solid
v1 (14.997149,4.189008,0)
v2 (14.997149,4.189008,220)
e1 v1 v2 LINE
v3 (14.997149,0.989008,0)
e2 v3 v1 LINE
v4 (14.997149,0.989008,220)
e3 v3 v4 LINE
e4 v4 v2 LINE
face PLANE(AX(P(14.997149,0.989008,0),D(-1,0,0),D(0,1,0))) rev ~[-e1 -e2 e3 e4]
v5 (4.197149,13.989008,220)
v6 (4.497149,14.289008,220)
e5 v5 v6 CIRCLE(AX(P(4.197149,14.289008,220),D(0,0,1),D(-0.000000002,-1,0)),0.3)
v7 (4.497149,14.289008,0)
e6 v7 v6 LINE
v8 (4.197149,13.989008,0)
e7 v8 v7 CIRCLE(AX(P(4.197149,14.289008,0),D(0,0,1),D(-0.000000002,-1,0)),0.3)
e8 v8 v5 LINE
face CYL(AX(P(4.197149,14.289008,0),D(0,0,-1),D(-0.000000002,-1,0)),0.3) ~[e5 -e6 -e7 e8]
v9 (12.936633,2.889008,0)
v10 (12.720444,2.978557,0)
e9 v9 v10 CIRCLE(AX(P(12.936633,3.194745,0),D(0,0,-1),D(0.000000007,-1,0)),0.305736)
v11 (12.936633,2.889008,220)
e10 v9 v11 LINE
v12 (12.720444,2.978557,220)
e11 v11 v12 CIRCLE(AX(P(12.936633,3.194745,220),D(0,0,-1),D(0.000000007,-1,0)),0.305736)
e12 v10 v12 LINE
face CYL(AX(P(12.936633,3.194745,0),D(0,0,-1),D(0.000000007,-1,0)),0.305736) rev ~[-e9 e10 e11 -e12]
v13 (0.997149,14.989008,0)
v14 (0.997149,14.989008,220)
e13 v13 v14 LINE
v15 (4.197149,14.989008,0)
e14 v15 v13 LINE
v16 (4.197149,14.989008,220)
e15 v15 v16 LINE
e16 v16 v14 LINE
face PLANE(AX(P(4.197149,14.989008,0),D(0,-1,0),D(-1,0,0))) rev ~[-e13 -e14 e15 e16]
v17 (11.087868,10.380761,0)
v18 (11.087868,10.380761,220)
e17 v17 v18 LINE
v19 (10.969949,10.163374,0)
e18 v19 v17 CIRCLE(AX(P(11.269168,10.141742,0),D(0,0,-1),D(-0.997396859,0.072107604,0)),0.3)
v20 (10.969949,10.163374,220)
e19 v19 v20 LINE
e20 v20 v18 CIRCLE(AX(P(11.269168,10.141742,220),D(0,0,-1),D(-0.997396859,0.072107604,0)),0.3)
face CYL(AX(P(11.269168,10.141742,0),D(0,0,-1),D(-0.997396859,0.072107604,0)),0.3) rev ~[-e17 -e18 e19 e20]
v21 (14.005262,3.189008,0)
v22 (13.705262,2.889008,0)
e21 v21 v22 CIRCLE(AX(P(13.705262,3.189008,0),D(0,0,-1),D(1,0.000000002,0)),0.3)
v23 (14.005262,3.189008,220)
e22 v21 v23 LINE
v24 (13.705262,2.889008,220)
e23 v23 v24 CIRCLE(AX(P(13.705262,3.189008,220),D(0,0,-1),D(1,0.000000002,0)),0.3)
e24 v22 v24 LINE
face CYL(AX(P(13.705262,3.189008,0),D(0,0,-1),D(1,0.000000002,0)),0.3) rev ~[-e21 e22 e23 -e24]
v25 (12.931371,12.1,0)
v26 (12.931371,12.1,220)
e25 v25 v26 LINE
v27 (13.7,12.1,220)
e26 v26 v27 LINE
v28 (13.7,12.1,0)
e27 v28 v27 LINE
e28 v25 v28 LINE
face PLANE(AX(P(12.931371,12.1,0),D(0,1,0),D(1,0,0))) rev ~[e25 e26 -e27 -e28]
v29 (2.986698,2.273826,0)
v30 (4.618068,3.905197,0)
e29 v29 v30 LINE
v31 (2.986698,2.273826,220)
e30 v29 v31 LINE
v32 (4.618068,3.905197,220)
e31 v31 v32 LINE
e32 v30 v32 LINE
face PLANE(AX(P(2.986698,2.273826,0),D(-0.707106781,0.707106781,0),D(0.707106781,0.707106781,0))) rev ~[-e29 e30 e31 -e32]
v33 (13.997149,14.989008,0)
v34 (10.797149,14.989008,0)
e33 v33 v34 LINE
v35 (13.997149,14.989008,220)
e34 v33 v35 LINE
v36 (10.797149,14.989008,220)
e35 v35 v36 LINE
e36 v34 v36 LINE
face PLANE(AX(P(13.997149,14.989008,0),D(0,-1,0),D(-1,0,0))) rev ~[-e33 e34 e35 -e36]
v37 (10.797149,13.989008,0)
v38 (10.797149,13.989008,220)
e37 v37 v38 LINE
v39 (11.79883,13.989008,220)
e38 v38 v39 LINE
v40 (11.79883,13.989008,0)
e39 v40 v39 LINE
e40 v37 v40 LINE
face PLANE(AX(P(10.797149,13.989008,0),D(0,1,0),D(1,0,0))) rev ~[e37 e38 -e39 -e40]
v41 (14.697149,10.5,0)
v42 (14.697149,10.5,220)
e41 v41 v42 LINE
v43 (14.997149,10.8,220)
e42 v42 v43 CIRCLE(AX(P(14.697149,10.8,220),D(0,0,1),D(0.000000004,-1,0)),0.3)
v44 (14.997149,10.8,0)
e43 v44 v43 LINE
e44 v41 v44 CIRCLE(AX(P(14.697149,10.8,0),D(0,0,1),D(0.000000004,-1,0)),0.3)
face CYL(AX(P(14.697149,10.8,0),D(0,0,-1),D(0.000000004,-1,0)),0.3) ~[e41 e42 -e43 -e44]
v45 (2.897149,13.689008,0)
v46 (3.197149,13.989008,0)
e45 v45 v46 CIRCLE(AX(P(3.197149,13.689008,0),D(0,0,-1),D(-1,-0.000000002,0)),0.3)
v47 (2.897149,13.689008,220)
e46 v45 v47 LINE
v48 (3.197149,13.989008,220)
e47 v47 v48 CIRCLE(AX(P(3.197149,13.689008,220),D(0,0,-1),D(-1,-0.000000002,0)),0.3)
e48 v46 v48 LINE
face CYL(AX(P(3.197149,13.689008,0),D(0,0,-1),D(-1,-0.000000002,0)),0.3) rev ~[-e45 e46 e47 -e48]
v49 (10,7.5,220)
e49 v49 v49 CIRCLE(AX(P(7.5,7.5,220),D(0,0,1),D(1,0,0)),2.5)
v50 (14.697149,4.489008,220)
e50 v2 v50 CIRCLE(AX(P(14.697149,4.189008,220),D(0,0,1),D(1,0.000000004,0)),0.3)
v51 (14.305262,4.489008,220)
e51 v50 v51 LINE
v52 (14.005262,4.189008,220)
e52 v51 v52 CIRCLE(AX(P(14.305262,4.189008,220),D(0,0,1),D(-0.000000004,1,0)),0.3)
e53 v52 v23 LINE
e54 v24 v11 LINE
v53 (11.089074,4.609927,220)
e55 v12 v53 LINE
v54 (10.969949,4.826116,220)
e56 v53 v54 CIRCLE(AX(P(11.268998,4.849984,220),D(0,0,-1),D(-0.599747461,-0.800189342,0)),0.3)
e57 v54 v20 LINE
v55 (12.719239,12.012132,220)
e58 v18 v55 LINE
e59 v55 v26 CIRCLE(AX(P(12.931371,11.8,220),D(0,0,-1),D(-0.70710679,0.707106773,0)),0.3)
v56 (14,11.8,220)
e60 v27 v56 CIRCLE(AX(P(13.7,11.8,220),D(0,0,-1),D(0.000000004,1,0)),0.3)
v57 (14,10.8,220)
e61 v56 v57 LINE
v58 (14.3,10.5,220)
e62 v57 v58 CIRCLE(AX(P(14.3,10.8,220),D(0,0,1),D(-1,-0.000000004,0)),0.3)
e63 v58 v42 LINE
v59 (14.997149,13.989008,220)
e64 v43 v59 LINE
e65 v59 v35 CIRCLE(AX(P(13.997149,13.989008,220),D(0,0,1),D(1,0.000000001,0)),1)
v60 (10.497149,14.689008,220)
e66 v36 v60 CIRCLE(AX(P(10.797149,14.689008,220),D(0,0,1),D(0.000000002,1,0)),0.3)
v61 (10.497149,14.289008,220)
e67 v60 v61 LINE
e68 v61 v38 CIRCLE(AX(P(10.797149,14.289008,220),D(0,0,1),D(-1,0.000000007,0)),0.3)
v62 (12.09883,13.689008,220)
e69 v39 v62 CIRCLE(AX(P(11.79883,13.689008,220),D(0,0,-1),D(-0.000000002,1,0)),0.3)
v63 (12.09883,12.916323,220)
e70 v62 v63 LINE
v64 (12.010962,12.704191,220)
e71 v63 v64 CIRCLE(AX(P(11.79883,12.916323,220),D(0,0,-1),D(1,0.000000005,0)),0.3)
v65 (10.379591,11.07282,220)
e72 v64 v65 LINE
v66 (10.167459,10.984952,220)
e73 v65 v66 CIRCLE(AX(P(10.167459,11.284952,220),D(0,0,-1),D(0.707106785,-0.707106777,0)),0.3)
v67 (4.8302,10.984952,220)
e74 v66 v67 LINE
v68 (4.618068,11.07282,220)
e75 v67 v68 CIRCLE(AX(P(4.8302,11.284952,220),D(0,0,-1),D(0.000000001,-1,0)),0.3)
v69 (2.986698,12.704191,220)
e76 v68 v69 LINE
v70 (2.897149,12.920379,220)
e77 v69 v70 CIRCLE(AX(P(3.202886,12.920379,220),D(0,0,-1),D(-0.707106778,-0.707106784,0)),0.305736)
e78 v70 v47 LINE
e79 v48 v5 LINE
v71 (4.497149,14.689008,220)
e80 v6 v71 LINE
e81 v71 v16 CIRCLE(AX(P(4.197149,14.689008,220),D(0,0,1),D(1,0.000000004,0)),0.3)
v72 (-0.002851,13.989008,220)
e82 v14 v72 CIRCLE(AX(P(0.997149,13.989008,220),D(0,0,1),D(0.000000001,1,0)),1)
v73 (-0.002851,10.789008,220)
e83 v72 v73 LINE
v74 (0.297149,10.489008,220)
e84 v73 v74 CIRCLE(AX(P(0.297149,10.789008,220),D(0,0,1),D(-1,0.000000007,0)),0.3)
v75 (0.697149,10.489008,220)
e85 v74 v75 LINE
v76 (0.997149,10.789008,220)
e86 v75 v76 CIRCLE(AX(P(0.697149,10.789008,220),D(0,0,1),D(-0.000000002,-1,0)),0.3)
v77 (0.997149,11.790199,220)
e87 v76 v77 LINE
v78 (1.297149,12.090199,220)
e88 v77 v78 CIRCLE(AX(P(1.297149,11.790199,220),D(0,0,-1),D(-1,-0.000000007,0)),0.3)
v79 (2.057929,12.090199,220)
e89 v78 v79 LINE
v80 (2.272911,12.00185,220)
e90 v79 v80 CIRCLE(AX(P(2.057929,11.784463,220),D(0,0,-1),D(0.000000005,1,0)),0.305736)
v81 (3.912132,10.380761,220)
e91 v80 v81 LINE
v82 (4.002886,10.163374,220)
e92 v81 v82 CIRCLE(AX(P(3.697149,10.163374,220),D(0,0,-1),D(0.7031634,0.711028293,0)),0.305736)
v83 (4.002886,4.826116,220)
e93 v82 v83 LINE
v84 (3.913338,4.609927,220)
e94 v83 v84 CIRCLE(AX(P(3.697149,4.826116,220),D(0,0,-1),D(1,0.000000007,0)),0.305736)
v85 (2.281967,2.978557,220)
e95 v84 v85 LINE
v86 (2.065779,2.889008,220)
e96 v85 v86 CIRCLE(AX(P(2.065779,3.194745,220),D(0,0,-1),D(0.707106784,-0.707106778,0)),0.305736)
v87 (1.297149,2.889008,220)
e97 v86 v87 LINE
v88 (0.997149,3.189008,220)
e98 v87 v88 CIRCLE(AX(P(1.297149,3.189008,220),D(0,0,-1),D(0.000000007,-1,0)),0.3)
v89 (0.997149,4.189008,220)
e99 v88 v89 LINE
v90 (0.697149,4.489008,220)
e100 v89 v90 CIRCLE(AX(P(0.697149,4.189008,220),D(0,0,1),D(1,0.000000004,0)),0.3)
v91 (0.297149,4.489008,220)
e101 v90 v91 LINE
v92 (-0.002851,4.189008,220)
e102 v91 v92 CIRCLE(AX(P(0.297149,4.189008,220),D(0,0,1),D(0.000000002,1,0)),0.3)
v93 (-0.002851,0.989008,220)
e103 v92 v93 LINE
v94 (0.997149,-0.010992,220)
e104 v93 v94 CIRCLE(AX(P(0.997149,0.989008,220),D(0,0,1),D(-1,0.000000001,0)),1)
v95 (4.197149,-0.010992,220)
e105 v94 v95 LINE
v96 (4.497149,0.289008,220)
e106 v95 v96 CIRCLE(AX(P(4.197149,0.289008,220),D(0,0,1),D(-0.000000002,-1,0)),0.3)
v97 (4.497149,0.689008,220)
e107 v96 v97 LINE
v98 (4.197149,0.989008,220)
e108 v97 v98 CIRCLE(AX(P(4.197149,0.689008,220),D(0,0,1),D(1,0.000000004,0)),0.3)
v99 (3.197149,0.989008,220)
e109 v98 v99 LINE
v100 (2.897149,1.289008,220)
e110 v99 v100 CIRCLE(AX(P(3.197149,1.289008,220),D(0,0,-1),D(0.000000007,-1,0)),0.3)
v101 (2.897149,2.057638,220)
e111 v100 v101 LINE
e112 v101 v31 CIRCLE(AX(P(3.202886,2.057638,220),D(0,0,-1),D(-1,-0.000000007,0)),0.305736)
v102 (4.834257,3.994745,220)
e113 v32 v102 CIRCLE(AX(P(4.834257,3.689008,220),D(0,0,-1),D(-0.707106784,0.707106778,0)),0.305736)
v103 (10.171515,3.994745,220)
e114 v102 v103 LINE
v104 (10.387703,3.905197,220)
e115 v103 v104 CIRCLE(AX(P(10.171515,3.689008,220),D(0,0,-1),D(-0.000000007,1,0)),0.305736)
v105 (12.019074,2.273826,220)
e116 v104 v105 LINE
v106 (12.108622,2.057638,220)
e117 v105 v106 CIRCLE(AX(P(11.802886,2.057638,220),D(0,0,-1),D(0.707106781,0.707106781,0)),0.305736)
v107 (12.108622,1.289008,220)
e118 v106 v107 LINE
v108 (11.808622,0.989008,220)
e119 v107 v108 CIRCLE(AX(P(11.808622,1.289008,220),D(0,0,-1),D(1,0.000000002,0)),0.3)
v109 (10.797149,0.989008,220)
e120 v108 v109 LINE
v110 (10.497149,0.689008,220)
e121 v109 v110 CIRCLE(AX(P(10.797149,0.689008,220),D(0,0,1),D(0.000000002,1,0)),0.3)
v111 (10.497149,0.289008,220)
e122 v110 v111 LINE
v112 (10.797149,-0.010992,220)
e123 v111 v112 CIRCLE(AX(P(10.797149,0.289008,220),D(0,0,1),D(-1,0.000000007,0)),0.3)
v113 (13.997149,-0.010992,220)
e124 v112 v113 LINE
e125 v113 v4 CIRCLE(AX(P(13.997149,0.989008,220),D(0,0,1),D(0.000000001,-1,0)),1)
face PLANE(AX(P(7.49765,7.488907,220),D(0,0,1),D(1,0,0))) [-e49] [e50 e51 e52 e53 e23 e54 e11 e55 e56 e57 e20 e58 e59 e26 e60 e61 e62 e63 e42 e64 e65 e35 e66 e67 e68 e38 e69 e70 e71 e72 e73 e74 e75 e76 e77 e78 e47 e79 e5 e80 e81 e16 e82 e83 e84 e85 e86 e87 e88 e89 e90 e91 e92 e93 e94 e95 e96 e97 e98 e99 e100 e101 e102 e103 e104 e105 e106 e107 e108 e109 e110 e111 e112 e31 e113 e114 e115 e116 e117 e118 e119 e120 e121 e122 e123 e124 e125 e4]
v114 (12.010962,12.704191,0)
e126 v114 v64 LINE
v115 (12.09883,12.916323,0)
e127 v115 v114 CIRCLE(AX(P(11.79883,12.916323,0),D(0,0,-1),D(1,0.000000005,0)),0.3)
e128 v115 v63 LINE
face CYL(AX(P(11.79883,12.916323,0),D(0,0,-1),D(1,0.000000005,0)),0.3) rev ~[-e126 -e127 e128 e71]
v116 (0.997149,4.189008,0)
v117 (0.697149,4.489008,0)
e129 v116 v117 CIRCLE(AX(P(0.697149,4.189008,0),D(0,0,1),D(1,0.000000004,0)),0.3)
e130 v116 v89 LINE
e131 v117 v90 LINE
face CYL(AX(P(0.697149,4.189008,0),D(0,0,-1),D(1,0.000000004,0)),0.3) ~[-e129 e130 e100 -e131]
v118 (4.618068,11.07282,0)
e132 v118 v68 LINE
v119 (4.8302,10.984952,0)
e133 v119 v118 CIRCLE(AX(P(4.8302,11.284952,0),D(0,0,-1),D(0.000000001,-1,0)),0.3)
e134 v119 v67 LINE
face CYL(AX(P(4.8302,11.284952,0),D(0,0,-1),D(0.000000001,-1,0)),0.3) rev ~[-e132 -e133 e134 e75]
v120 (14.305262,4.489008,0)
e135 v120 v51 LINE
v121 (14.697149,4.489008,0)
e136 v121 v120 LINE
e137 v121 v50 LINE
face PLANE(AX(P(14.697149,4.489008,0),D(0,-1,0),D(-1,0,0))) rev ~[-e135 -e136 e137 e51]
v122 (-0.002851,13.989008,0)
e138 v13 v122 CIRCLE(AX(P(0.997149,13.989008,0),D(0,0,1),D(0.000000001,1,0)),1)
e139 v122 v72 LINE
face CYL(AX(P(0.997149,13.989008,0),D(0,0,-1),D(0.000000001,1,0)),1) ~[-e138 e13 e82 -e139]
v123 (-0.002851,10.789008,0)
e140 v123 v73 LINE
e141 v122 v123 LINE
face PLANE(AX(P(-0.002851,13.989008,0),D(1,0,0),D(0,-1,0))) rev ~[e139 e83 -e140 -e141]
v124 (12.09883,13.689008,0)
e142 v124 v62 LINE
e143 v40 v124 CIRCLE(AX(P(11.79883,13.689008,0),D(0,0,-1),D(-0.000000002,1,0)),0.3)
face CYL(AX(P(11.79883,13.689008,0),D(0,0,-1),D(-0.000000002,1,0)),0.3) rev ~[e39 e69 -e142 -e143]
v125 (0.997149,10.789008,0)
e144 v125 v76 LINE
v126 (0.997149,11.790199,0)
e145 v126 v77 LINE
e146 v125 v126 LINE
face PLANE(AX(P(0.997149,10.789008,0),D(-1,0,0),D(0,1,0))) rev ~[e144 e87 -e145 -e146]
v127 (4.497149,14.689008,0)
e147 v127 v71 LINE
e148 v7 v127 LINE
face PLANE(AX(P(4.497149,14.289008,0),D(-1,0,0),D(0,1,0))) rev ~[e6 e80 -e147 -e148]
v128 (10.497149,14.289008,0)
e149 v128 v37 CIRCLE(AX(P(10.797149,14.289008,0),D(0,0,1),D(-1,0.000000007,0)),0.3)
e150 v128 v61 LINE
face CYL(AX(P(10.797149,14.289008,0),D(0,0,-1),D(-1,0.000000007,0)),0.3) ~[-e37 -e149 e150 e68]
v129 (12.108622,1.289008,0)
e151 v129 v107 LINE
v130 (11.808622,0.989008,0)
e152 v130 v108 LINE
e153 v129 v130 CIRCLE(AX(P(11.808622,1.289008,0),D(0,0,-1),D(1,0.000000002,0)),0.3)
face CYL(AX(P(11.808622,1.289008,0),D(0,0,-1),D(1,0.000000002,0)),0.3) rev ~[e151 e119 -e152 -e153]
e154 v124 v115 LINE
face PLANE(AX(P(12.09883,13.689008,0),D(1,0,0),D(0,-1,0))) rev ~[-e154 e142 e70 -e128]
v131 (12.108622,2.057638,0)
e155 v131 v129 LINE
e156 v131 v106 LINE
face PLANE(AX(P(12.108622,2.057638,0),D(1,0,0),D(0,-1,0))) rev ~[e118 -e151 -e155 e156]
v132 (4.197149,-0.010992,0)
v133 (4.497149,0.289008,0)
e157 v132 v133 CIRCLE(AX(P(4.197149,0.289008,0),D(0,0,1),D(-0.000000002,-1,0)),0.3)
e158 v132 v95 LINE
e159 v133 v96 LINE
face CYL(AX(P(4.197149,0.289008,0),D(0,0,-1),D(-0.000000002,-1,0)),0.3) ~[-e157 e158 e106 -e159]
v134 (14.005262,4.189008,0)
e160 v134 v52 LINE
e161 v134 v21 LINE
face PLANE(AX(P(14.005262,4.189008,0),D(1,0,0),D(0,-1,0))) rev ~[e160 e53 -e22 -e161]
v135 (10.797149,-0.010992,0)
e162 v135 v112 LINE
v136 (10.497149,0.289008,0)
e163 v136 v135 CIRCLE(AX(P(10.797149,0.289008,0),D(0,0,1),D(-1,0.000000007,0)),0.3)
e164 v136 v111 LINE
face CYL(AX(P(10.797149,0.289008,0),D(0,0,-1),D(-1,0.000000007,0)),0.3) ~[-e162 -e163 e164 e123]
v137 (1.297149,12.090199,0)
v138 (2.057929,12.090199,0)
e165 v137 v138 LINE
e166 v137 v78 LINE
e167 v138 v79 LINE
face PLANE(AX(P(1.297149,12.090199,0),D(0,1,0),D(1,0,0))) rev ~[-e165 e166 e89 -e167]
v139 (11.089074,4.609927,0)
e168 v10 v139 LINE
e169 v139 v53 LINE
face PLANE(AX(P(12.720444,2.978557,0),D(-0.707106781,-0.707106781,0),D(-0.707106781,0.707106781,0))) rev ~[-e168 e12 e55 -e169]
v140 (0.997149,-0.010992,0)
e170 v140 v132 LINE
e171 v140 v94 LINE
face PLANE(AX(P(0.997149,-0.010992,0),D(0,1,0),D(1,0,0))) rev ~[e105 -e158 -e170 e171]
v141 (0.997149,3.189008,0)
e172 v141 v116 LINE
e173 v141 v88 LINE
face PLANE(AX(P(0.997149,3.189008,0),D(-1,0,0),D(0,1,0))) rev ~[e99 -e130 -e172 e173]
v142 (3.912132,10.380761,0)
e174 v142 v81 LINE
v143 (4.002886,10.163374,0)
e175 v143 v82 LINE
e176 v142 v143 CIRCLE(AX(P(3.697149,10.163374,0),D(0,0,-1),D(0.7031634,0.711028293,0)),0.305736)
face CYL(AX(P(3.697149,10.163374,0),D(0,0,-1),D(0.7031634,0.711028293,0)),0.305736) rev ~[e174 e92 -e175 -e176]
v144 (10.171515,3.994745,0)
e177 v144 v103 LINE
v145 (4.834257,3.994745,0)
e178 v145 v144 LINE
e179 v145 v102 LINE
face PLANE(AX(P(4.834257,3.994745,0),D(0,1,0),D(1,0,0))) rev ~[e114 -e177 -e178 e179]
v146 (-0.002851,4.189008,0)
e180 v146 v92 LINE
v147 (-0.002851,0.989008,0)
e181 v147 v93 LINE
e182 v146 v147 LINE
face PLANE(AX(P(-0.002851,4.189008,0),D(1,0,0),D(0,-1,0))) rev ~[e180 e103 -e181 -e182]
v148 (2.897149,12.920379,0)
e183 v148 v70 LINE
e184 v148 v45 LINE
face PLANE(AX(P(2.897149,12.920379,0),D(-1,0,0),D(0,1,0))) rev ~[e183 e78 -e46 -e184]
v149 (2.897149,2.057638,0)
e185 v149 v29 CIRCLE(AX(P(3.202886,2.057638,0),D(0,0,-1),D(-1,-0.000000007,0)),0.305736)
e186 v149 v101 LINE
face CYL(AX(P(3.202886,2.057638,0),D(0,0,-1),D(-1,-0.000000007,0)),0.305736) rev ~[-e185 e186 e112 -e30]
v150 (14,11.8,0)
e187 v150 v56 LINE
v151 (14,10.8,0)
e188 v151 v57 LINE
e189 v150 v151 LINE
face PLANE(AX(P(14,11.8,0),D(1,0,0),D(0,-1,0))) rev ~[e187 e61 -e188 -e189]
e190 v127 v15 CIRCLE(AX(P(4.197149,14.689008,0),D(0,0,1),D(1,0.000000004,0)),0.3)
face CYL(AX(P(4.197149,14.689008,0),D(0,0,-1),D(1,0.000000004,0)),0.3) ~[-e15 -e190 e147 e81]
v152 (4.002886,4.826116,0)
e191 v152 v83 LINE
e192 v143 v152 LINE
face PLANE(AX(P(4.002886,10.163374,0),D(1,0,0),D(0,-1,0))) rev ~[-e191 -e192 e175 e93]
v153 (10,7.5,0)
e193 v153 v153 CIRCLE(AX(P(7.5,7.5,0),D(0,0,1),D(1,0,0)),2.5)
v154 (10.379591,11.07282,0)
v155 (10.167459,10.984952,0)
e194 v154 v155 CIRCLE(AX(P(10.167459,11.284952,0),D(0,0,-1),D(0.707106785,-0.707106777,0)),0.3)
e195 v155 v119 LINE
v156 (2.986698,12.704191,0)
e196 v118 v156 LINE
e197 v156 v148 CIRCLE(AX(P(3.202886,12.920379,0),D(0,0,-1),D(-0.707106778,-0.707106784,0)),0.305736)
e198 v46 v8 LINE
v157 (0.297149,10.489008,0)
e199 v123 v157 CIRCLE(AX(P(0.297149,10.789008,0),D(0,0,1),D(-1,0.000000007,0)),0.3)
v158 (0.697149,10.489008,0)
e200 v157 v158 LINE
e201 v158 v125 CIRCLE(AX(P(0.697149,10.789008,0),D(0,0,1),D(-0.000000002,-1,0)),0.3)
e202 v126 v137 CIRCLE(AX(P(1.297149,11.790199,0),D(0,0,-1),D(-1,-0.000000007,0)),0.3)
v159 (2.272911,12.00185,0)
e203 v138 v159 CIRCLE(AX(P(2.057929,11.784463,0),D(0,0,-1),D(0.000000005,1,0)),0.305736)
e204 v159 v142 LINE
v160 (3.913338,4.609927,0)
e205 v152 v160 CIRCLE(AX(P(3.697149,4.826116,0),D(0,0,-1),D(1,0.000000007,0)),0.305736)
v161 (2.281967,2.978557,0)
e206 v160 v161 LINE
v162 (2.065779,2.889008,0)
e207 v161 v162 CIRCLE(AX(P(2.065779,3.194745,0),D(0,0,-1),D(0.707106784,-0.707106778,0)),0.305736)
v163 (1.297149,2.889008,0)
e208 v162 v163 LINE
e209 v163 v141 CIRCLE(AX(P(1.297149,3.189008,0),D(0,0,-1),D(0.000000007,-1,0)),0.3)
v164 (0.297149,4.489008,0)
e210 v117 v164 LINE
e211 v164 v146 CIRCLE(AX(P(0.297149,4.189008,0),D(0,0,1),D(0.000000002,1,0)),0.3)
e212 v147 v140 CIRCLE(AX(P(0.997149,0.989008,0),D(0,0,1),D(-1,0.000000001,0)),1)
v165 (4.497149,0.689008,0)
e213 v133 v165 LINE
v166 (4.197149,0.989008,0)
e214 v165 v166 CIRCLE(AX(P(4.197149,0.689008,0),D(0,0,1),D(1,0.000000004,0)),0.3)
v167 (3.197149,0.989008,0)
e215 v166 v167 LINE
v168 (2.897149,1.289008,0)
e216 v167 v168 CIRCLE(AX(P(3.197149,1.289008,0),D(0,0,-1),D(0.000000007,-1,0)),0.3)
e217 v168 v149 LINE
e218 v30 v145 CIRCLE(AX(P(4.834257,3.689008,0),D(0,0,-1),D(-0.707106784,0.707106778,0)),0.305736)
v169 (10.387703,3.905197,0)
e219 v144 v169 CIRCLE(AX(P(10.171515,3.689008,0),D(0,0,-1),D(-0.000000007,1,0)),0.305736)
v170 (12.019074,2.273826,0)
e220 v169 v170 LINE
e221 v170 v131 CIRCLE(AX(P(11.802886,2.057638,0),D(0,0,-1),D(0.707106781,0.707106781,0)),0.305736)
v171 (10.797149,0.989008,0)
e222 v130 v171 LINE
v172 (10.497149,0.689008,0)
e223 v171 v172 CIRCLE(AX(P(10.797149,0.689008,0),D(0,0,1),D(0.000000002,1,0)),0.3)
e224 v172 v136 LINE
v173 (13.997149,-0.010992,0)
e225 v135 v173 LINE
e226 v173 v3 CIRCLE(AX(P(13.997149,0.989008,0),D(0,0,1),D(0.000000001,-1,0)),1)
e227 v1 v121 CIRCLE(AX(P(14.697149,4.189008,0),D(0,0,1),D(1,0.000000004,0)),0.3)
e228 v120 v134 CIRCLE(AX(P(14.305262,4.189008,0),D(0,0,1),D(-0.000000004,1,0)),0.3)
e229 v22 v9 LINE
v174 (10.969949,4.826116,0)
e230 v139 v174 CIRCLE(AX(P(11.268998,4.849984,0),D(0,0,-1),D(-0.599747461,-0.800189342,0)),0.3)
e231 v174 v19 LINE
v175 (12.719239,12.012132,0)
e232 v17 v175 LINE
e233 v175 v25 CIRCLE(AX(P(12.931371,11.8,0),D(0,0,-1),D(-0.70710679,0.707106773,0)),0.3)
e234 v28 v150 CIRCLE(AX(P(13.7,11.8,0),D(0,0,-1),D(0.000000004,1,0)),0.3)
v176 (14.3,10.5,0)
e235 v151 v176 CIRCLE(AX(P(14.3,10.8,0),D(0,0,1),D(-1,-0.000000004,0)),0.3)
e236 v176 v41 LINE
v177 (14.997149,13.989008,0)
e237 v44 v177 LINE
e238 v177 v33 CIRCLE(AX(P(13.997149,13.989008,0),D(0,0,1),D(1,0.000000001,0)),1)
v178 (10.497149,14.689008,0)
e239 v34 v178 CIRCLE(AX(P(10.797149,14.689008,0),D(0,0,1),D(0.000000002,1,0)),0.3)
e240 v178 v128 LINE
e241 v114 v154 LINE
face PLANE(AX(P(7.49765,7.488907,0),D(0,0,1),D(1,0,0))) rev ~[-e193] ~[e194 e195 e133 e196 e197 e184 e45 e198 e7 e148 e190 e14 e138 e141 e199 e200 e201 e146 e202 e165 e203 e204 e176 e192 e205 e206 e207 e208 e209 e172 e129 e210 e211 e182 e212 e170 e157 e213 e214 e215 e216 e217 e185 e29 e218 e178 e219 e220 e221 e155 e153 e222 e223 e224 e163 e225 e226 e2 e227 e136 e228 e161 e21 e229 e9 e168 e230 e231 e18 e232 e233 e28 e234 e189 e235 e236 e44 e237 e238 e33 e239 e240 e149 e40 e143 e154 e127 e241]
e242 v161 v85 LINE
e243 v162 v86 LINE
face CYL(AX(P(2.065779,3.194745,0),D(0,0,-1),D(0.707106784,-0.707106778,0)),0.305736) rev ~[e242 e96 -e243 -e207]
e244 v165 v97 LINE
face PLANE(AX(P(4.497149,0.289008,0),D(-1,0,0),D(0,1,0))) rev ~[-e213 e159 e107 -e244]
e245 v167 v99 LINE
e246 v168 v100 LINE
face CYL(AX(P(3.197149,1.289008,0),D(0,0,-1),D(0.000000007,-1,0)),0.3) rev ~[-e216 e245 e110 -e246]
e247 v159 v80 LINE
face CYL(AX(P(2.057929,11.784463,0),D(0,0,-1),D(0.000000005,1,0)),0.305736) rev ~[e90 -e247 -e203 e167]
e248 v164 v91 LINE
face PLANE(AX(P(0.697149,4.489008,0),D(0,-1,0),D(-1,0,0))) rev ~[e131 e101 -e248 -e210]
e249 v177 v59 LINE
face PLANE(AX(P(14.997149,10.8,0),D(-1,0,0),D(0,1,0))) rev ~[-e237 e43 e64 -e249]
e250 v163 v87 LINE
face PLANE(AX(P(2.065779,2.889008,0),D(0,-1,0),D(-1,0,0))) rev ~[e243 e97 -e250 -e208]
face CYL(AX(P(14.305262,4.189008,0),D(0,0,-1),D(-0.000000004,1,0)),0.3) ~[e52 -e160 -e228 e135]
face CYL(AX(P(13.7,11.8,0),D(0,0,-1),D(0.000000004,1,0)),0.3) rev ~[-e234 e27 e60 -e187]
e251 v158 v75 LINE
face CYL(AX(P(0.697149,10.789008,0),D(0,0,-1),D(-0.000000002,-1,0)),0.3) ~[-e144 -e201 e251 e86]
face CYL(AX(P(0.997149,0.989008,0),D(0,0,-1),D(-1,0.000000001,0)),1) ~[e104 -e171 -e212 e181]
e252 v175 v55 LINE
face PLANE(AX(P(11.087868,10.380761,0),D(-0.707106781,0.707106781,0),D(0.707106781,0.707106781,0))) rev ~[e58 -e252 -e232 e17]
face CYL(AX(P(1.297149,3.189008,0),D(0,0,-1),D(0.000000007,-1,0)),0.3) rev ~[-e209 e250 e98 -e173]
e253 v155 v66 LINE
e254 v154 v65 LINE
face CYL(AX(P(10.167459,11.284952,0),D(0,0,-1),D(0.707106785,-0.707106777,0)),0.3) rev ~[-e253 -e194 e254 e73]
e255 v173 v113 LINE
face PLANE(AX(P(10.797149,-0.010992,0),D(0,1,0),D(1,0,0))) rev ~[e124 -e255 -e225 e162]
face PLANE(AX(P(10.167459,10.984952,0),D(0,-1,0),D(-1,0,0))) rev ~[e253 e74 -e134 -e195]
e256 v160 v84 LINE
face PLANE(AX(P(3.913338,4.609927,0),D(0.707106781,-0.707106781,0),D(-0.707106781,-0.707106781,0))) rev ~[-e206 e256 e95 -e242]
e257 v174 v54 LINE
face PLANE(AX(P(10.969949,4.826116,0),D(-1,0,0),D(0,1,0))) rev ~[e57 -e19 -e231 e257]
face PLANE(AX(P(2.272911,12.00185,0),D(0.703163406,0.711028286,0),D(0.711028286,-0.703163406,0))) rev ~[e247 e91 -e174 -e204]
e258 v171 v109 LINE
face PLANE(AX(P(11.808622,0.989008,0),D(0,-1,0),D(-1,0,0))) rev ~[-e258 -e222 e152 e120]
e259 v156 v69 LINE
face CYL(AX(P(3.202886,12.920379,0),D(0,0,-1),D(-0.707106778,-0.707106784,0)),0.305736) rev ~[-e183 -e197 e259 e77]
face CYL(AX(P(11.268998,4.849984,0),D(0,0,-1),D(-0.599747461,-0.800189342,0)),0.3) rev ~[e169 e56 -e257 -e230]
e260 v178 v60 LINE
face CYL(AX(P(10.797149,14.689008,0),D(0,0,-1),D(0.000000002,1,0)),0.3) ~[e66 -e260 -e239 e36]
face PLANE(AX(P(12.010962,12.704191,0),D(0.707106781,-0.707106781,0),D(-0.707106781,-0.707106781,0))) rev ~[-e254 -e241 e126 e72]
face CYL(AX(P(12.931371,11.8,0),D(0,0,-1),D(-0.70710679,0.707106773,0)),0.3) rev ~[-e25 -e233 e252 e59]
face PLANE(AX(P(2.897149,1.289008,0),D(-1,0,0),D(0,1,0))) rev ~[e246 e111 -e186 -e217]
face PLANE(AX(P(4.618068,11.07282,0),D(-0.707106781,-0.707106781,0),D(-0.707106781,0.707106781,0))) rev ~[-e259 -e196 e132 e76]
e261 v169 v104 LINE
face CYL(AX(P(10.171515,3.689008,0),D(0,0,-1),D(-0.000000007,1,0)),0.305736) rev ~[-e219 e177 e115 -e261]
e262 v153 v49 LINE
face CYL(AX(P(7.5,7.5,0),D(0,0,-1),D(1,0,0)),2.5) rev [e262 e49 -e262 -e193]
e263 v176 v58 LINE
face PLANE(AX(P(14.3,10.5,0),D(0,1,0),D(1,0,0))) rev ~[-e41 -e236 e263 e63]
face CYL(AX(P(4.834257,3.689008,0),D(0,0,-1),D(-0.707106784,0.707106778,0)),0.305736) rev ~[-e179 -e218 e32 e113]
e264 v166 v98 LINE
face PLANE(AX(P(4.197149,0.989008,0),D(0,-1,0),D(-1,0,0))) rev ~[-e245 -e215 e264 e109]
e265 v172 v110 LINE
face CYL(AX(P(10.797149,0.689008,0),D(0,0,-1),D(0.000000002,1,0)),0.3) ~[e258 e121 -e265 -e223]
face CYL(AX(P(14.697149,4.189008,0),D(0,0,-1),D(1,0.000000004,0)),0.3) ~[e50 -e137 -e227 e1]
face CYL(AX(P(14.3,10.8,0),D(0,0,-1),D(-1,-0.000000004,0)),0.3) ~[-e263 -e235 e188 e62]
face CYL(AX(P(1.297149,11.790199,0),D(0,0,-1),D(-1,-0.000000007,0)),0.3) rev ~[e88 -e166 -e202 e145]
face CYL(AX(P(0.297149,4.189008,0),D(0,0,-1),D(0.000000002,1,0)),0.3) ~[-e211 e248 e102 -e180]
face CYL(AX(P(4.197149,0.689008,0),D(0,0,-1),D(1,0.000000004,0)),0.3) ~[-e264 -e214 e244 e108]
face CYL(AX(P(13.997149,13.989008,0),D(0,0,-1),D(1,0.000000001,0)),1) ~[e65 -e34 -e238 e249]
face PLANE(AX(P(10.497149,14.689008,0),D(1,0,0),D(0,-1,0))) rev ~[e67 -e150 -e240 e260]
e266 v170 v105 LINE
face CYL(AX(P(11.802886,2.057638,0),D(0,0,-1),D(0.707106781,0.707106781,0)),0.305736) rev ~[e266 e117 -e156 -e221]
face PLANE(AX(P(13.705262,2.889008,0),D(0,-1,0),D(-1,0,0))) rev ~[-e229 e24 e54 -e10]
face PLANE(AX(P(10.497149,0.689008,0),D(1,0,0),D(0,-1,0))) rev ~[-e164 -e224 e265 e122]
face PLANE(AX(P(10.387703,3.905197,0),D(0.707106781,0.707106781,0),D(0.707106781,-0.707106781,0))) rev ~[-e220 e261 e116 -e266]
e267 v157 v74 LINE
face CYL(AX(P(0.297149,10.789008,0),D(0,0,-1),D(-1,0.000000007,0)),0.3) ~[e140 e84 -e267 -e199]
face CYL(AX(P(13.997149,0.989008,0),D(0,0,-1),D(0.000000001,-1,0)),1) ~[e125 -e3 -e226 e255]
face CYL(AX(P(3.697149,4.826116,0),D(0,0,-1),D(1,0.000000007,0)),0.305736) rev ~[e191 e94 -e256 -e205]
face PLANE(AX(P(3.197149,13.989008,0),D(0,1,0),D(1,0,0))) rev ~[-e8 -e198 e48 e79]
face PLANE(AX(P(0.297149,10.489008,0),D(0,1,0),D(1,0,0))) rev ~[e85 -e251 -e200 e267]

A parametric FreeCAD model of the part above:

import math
import FreeCAD as App
import Part
import Sketcher
Q = App.Units.Quantity

doc = App.newDocument("Part")
body = doc.addObject("PartDesign::Body", "Body")

# Sketch on XY plane
sketch1 = doc.addObject("Sketcher::SketchObject", "Sketch")
body.addObject(sketch1)
sketch1.AttachmentSupport = (doc.XY_Plane, [""])
sketch1.MapMode = "FlatFace"
sketch1.addGeometry([
    Part.LineSegment(App.Vector(0.997149, -0.010992, 0), App.Vector(4.197149, -0.010992, 0)),  # 0
    Part.ArcOfCircle(Part.Circle(App.Vector(4.197149, 0.289008, 0), App.Vector(0, 0, 1), 0.3), math.radians(-90), math.radians(0)),  # 1
    Part.LineSegment(App.Vector(4.497149, 0.289008, 0), App.Vector(4.497149, 0.689008, 0)),  # 2
    Part.ArcOfCircle(Part.Circle(App.Vector(4.197149, 0.689008, 0), App.Vector(0, 0, 1), 0.3), math.radians(0), math.radians(90)),  # 3
    Part.LineSegment(App.Vector(4.197149, 0.989008, 0), App.Vector(3.197149, 0.989008, 0)),  # 4
    Part.ArcOfCircle(Part.Circle(App.Vector(3.197149, 1.289008, 0), App.Vector(0, 0, 1), 0.3), math.radians(180), math.radians(270)),  # 5
    Part.LineSegment(App.Vector(2.897149, 1.289008, 0), App.Vector(2.897149, 2.057638, 0)),  # 6
    Part.ArcOfCircle(Part.Circle(App.Vector(3.202886, 2.057638, 0), App.Vector(0, 0, 1), 0.305736), math.radians(135), math.radians(180)),  # 7
    Part.LineSegment(App.Vector(2.986698, 2.273826, 0), App.Vector(4.618068, 3.905197, 0)),  # 8
    Part.ArcOfCircle(Part.Circle(App.Vector(4.834257, 3.689008, 0), App.Vector(0, 0, 1), 0.305736), math.radians(90), math.radians(135)),  # 9
    Part.LineSegment(App.Vector(4.834257, 3.994745, 0), App.Vector(10.171515, 3.994745, 0)),  # 10
    Part.ArcOfCircle(Part.Circle(App.Vector(10.171515, 3.689008, 0), App.Vector(0, 0, 1), 0.305736), math.radians(45), math.radians(90)),  # 11
    Part.LineSegment(App.Vector(10.387703, 3.905197, 0), App.Vector(12.019074, 2.273826, 0)),  # 12
    Part.ArcOfCircle(Part.Circle(App.Vector(11.802886, 2.057638, 0), App.Vector(0, 0, 1), 0.305736), math.radians(0), math.radians(45)),  # 13
    Part.LineSegment(App.Vector(12.108622, 2.057638, 0), App.Vector(12.108622, 1.289008, 0)),  # 14
    Part.ArcOfCircle(Part.Circle(App.Vector(11.808622, 1.289008, 0), App.Vector(0, 0, 1), 0.3), math.radians(-90), math.radians(0)),  # 15
    Part.LineSegment(App.Vector(11.808622, 0.989008, 0), App.Vector(10.797149, 0.989008, 0)),  # 16
    Part.ArcOfCircle(Part.Circle(App.Vector(10.797149, 0.689008, 0), App.Vector(0, 0, 1), 0.3), math.radians(90), math.radians(180)),  # 17
    Part.LineSegment(App.Vector(10.497149, 0.689008, 0), App.Vector(10.497149, 0.289008, 0)),  # 18
    Part.ArcOfCircle(Part.Circle(App.Vector(10.797149, 0.289008, 0), App.Vector(0, 0, 1), 0.3), math.radians(180), math.radians(270)),  # 19
    Part.LineSegment(App.Vector(10.797149, -0.010992, 0), App.Vector(13.997149, -0.010992, 0)),  # 20
    Part.ArcOfCircle(Part.Circle(App.Vector(13.997149, 0.989008, 0), App.Vector(0, 0, 1), 1), math.radians(-90), math.radians(0)),  # 21
    Part.LineSegment(App.Vector(14.997149, 0.989008, 0), App.Vector(14.997149, 4.189008, 0)),  # 22
    Part.ArcOfCircle(Part.Circle(App.Vector(14.697149, 4.189008, 0), App.Vector(0, 0, 1), 0.3), math.radians(0), math.radians(90)),  # 23
    Part.LineSegment(App.Vector(14.697149, 4.489008, 0), App.Vector(14.305262, 4.489008, 0)),  # 24
    Part.ArcOfCircle(Part.Circle(App.Vector(14.305262, 4.189008, 0), App.Vector(0, 0, 1), 0.3), math.radians(90), math.radians(180)),  # 25
    Part.LineSegment(App.Vector(14.005262, 4.189008, 0), App.Vector(14.005262, 3.189008, 0)),  # 26
    Part.ArcOfCircle(Part.Circle(App.Vector(13.705262, 3.189008, 0), App.Vector(0, 0, 1), 0.3), math.radians(-90), math.radians(0)),  # 27
    Part.LineSegment(App.Vector(13.705262, 2.889008, 0), App.Vector(12.936633, 2.889008, 0)),  # 28
    Part.ArcOfCircle(Part.Circle(App.Vector(12.936633, 3.194745, 0), App.Vector(0, 0, 1), 0.305736), math.radians(-135), math.radians(-90)),  # 29
    Part.LineSegment(App.Vector(12.720444, 2.978557, 0), App.Vector(11.089074, 4.609927, 0)),  # 30
    Part.ArcOfCircle(Part.Circle(App.Vector(11.268998, 4.849984, 0), App.Vector(0, 0, 1), 0.3), math.radians(-175.436627), math.radians(-126.851813)),  # 31
    Part.LineSegment(App.Vector(10.969949, 4.826116, 0), App.Vector(10.969949, 10.163374, 0)),  # 32
    Part.ArcOfCircle(Part.Circle(App.Vector(11.269168, 10.141742, 0), App.Vector(0, 0, 1), 0.3), math.radians(127.180872), math.radians(175.86495)),  # 33
    Part.LineSegment(App.Vector(11.087868, 10.380761, 0), App.Vector(12.719239, 12.012132, 0)),  # 34
    Part.ArcOfCircle(Part.Circle(App.Vector(12.931371, 11.8, 0), App.Vector(0, 0, 1), 0.3), math.radians(90), math.radians(135.000001)),  # 35
    Part.LineSegment(App.Vector(12.931371, 12.1, 0), App.Vector(13.7, 12.1, 0)),  # 36
    Part.ArcOfCircle(Part.Circle(App.Vector(13.7, 11.8, 0), App.Vector(0, 0, 1), 0.3), math.radians(0), math.radians(90)),  # 37
    Part.LineSegment(App.Vector(14, 11.8, 0), App.Vector(14, 10.8, 0)),  # 38
    Part.ArcOfCircle(Part.Circle(App.Vector(14.3, 10.8, 0), App.Vector(0, 0, 1), 0.3), math.radians(-180), math.radians(-90)),  # 39
    Part.LineSegment(App.Vector(14.3, 10.5, 0), App.Vector(14.697149, 10.5, 0)),  # 40
    Part.ArcOfCircle(Part.Circle(App.Vector(14.697149, 10.8, 0), App.Vector(0, 0, 1), 0.3), math.radians(-90), math.radians(0)),  # 41
    Part.LineSegment(App.Vector(14.997149, 10.8, 0), App.Vector(14.997149, 13.989008, 0)),  # 42
    Part.ArcOfCircle(Part.Circle(App.Vector(13.997149, 13.989008, 0), App.Vector(0, 0, 1), 1), math.radians(0), math.radians(90)),  # 43
    Part.LineSegment(App.Vector(13.997149, 14.989008, 0), App.Vector(10.797149, 14.989008, 0)),  # 44
    Part.ArcOfCircle(Part.Circle(App.Vector(10.797149, 14.689008, 0), App.Vector(0, 0, 1), 0.3), math.radians(90), math.radians(180)),  # 45
    Part.LineSegment(App.Vector(10.497149, 14.689008, 0), App.Vector(10.497149, 14.289008, 0)),  # 46
    Part.ArcOfCircle(Part.Circle(App.Vector(10.797149, 14.289008, 0), App.Vector(0, 0, 1), 0.3), math.radians(180), math.radians(270)),  # 47
    Part.LineSegment(App.Vector(10.797149, 13.989008, 0), App.Vector(11.79883, 13.989008, 0)),  # 48
    Part.ArcOfCircle(Part.Circle(App.Vector(11.79883, 13.689008, 0), App.Vector(0, 0, 1), 0.3), math.radians(0), math.radians(90)),  # 49
    Part.LineSegment(App.Vector(12.09883, 13.689008, 0), App.Vector(12.09883, 12.916323, 0)),  # 50
    Part.ArcOfCircle(Part.Circle(App.Vector(11.79883, 12.916323, 0), App.Vector(0, 0, 1), 0.3), math.radians(-45), math.radians(0)),  # 51
    Part.LineSegment(App.Vector(12.010962, 12.704191, 0), App.Vector(10.379591, 11.07282, 0)),  # 52
    Part.ArcOfCircle(Part.Circle(App.Vector(10.167459, 11.284952, 0), App.Vector(0, 0, 1), 0.3), math.radians(-90), math.radians(-45)),  # 53
    Part.LineSegment(App.Vector(10.167459, 10.984952, 0), App.Vector(4.8302, 10.984952, 0)),  # 54
    Part.ArcOfCircle(Part.Circle(App.Vector(4.8302, 11.284952, 0), App.Vector(0, 0, 1), 0.3), math.radians(-135), math.radians(-90)),  # 55
    Part.LineSegment(App.Vector(4.618068, 11.07282, 0), App.Vector(2.986698, 12.704191, 0)),  # 56
    Part.ArcOfCircle(Part.Circle(App.Vector(3.202886, 12.920379, 0), App.Vector(0, 0, 1), 0.305736), math.radians(180), math.radians(225)),  # 57
    Part.LineSegment(App.Vector(2.897149, 12.920379, 0), App.Vector(2.897149, 13.689008, 0)),  # 58
    Part.ArcOfCircle(Part.Circle(App.Vector(3.197149, 13.689008, 0), App.Vector(0, 0, 1), 0.3), math.radians(90), math.radians(180)),  # 59
    Part.LineSegment(App.Vector(3.197149, 13.989008, 0), App.Vector(4.197149, 13.989008, 0)),  # 60
    Part.ArcOfCircle(Part.Circle(App.Vector(4.197149, 14.289008, 0), App.Vector(0, 0, 1), 0.3), math.radians(-90), math.radians(0)),  # 61
    Part.LineSegment(App.Vector(4.497149, 14.289008, 0), App.Vector(4.497149, 14.689008, 0)),  # 62
    Part.ArcOfCircle(Part.Circle(App.Vector(4.197149, 14.689008, 0), App.Vector(0, 0, 1), 0.3), math.radians(0), math.radians(90)),  # 63
    Part.LineSegment(App.Vector(4.197149, 14.989008, 0), App.Vector(0.997149, 14.989008, 0)),  # 64
    Part.ArcOfCircle(Part.Circle(App.Vector(0.997149, 13.989008, 0), App.Vector(0, 0, 1), 1), math.radians(90), math.radians(180)),  # 65
    Part.LineSegment(App.Vector(-0.002851, 13.989008, 0), App.Vector(-0.002851, 10.789008, 0)),  # 66
    Part.ArcOfCircle(Part.Circle(App.Vector(0.297149, 10.789008, 0), App.Vector(0, 0, 1), 0.3), math.radians(180), math.radians(270)),  # 67
    Part.LineSegment(App.Vector(0.297149, 10.489008, 0), App.Vector(0.697149, 10.489008, 0)),  # 68
    Part.ArcOfCircle(Part.Circle(App.Vector(0.697149, 10.789008, 0), App.Vector(0, 0, 1), 0.3), math.radians(-90), math.radians(0)),  # 69
    Part.LineSegment(App.Vector(0.997149, 10.789008, 0), App.Vector(0.997149, 11.790199, 0)),  # 70
    Part.ArcOfCircle(Part.Circle(App.Vector(1.297149, 11.790199, 0), App.Vector(0, 0, 1), 0.3), math.radians(90), math.radians(180)),  # 71
    Part.LineSegment(App.Vector(1.297149, 12.090199, 0), App.Vector(2.057929, 12.090199, 0)),  # 72
    Part.ArcOfCircle(Part.Circle(App.Vector(2.057929, 11.784463, 0), App.Vector(0, 0, 1), 0.305736), math.radians(45.318641), math.radians(90)),  # 73
    Part.LineSegment(App.Vector(2.272911, 12.00185, 0), App.Vector(3.912132, 10.380761, 0)),  # 74
    Part.ArcOfCircle(Part.Circle(App.Vector(3.697149, 10.163374, 0), App.Vector(0, 0, 1), 0.305736), math.radians(0), math.radians(45.318642)),  # 75
    Part.LineSegment(App.Vector(4.002886, 10.163374, 0), App.Vector(4.002886, 4.826116, 0)),  # 76
    Part.ArcOfCircle(Part.Circle(App.Vector(3.697149, 4.826116, 0), App.Vector(0, 0, 1), 0.305736), math.radians(-45), math.radians(0)),  # 77
    Part.LineSegment(App.Vector(3.913338, 4.609927, 0), App.Vector(2.281967, 2.978557, 0)),  # 78
    Part.ArcOfCircle(Part.Circle(App.Vector(2.065779, 3.194745, 0), App.Vector(0, 0, 1), 0.305736), math.radians(-90), math.radians(-45)),  # 79
    Part.LineSegment(App.Vector(2.065779, 2.889008, 0), App.Vector(1.297149, 2.889008, 0)),  # 80
    Part.ArcOfCircle(Part.Circle(App.Vector(1.297149, 3.189008, 0), App.Vector(0, 0, 1), 0.3), math.radians(180), math.radians(270)),  # 81
    Part.LineSegment(App.Vector(0.997149, 3.189008, 0), App.Vector(0.997149, 4.189008, 0)),  # 82
    Part.ArcOfCircle(Part.Circle(App.Vector(0.697149, 4.189008, 0), App.Vector(0, 0, 1), 0.3), math.radians(0), math.radians(90)),  # 83
    Part.LineSegment(App.Vector(0.697149, 4.489008, 0), App.Vector(0.297149, 4.489008, 0)),  # 84
    Part.ArcOfCircle(Part.Circle(App.Vector(0.297149, 4.189008, 0), App.Vector(0, 0, 1), 0.3), math.radians(90), math.radians(180)),  # 85
    Part.LineSegment(App.Vector(-0.002851, 4.189008, 0), App.Vector(-0.002851, 0.989008, 0)),  # 86
    Part.ArcOfCircle(Part.Circle(App.Vector(0.997149, 0.989008, 0), App.Vector(0, 0, 1), 1), math.radians(180), math.radians(270)),  # 87
    Part.Circle(App.Vector(7.5, 7.5, 0), App.Vector(0, 0, 1), 2.5),  # 88
], False)
sketch1.addConstraint([
    Sketcher.Constraint("Tangent", 0, 2, 1, 1),
    Sketcher.Constraint("Tangent", 1, 2, 2, 1),
    Sketcher.Constraint("Tangent", 2, 2, 3, 1),
    Sketcher.Constraint("Tangent", 3, 2, 4, 1),
    Sketcher.Constraint("Tangent", 4, 2, 5, 2),
    Sketcher.Constraint("Tangent", 5, 1, 6, 1),
    Sketcher.Constraint("Tangent", 6, 2, 7, 2),
    Sketcher.Constraint("Tangent", 7, 1, 8, 1),
    Sketcher.Constraint("Tangent", 8, 2, 9, 2),
    Sketcher.Constraint("Tangent", 9, 1, 10, 1),
    Sketcher.Constraint("Tangent", 10, 2, 11, 2),
    Sketcher.Constraint("Tangent", 11, 1, 12, 1),
    Sketcher.Constraint("Tangent", 12, 2, 13, 2),
    Sketcher.Constraint("Tangent", 13, 1, 14, 1),
    Sketcher.Constraint("Tangent", 14, 2, 15, 2),
    Sketcher.Constraint("Tangent", 15, 1, 16, 1),
    Sketcher.Constraint("Tangent", 16, 2, 17, 1),
    Sketcher.Constraint("Tangent", 17, 2, 18, 1),
    Sketcher.Constraint("Tangent", 18, 2, 19, 1),
    Sketcher.Constraint("Tangent", 19, 2, 20, 1),
    Sketcher.Constraint("Tangent", 20, 2, 21, 1),
    Sketcher.Constraint("Tangent", 21, 2, 22, 1),
    Sketcher.Constraint("Tangent", 22, 2, 23, 1),
    Sketcher.Constraint("Tangent", 23, 2, 24, 1),
    Sketcher.Constraint("Tangent", 24, 2, 25, 1),
    Sketcher.Constraint("Tangent", 25, 2, 26, 1),
    Sketcher.Constraint("Tangent", 26, 2, 27, 2),
    Sketcher.Constraint("Tangent", 27, 1, 28, 1),
    Sketcher.Constraint("Tangent", 28, 2, 29, 2),
    Sketcher.Constraint("Tangent", 29, 1, 30, 1),
    Sketcher.Constraint("Coincident", 30, 2, 31, 2),
    Sketcher.Constraint("Coincident", 31, 1, 32, 1),
    Sketcher.Constraint("Coincident", 32, 2, 33, 2),
    Sketcher.Constraint("Coincident", 33, 1, 34, 1),
    Sketcher.Constraint("Tangent", 34, 2, 35, 2),
    Sketcher.Constraint("Tangent", 35, 1, 36, 1),
    Sketcher.Constraint("Tangent", 36, 2, 37, 2),
    Sketcher.Constraint("Tangent", 37, 1, 38, 1),
    Sketcher.Constraint("Tangent", 38, 2, 39, 1),
    Sketcher.Constraint("Tangent", 39, 2, 40, 1),
    Sketcher.Constraint("Tangent", 40, 2, 41, 1),
    Sketcher.Constraint("Tangent", 41, 2, 42, 1),
    Sketcher.Constraint("Tangent", 42, 2, 43, 1),
    Sketcher.Constraint("Tangent", 43, 2, 44, 1),
    Sketcher.Constraint("Tangent", 44, 2, 45, 1),
    Sketcher.Constraint("Tangent", 45, 2, 46, 1),
    Sketcher.Constraint("Tangent", 46, 2, 47, 1),
    Sketcher.Constraint("Tangent", 47, 2, 48, 1),
    Sketcher.Constraint("Tangent", 48, 2, 49, 2),
    Sketcher.Constraint("Tangent", 49, 1, 50, 1),
    Sketcher.Constraint("Tangent", 50, 2, 51, 2),
    Sketcher.Constraint("Tangent", 51, 1, 52, 1),
    Sketcher.Constraint("Tangent", 52, 2, 53, 2),
    Sketcher.Constraint("Tangent", 53, 1, 54, 1),
    Sketcher.Constraint("Tangent", 54, 2, 55, 2),
    Sketcher.Constraint("Tangent", 55, 1, 56, 1),
    Sketcher.Constraint("Tangent", 56, 2, 57, 2),
    Sketcher.Constraint("Tangent", 57, 1, 58, 1),
    Sketcher.Constraint("Tangent", 58, 2, 59, 2),
    Sketcher.Constraint("Tangent", 59, 1, 60, 1),
    Sketcher.Constraint("Tangent", 60, 2, 61, 1),
    Sketcher.Constraint("Tangent", 61, 2, 62, 1),
    Sketcher.Constraint("Tangent", 62, 2, 63, 1),
    Sketcher.Constraint("Tangent", 63, 2, 64, 1),
    Sketcher.Constraint("Tangent", 64, 2, 65, 1),
    Sketcher.Constraint("Tangent", 65, 2, 66, 1),
    Sketcher.Constraint("Tangent", 66, 2, 67, 1),
    Sketcher.Constraint("Tangent", 67, 2, 68, 1),
    Sketcher.Constraint("Tangent", 68, 2, 69, 1),
    Sketcher.Constraint("Tangent", 69, 2, 70, 1),
    Sketcher.Constraint("Tangent", 70, 2, 71, 2),
    Sketcher.Constraint("Tangent", 71, 1, 72, 1),
    Sketcher.Constraint("Tangent", 72, 2, 73, 2),
    Sketcher.Constraint("Tangent", 73, 1, 74, 1),
    Sketcher.Constraint("Tangent", 74, 2, 75, 2),
    Sketcher.Constraint("Tangent", 75, 1, 76, 1),
    Sketcher.Constraint("Tangent", 76, 2, 77, 2),
    Sketcher.Constraint("Tangent", 77, 1, 78, 1),
    Sketcher.Constraint("Tangent", 78, 2, 79, 2),
    Sketcher.Constraint("Tangent", 79, 1, 80, 1),
    Sketcher.Constraint("Tangent", 80, 2, 81, 2),
    Sketcher.Constraint("Tangent", 81, 1, 82, 1),
    Sketcher.Constraint("Tangent", 82, 2, 83, 1),
    Sketcher.Constraint("Tangent", 83, 2, 84, 1),
    Sketcher.Constraint("Tangent", 84, 2, 85, 1),
    Sketcher.Constraint("Tangent", 85, 2, 86, 1),
    Sketcher.Constraint("Tangent", 86, 2, 87, 1),
    Sketcher.Constraint("Tangent", 87, 2, 0, 1),
    Sketcher.Constraint("Horizontal", 0),
    Sketcher.Constraint("Vertical", 2),
    Sketcher.Constraint("Horizontal", 4),
    Sketcher.Constraint("Vertical", 6),
    Sketcher.Constraint("Horizontal", 10),
    Sketcher.Constraint("Vertical", 14),
    Sketcher.Constraint("Horizontal", 16),
    Sketcher.Constraint("Vertical", 18),
    Sketcher.Constraint("Horizontal", 20),
    Sketcher.Constraint("Vertical", 22),
    Sketcher.Constraint("Horizontal", 24),
    Sketcher.Constraint("Vertical", 26),
    Sketcher.Constraint("Horizontal", 28),
    Sketcher.Constraint("Vertical", 32),
    Sketcher.Constraint("Horizontal", 36),
    Sketcher.Constraint("Vertical", 38),
    Sketcher.Constraint("Horizontal", 40),
    Sketcher.Constraint("Vertical", 42),
    Sketcher.Constraint("Horizontal", 44),
    Sketcher.Constraint("Vertical", 46),
    Sketcher.Constraint("Horizontal", 48),
    Sketcher.Constraint("Vertical", 50),
    Sketcher.Constraint("Horizontal", 54),
    Sketcher.Constraint("Vertical", 58),
    Sketcher.Constraint("Horizontal", 60),
    Sketcher.Constraint("Vertical", 62),
    Sketcher.Constraint("Horizontal", 64),
    Sketcher.Constraint("Vertical", 66),
    Sketcher.Constraint("Horizontal", 68),
    Sketcher.Constraint("Vertical", 70),
    Sketcher.Constraint("Horizontal", 72),
    Sketcher.Constraint("Vertical", 76),
    Sketcher.Constraint("Horizontal", 80),
    Sketcher.Constraint("Vertical", 82),
    Sketcher.Constraint("Horizontal", 84),
    Sketcher.Constraint("Vertical", 86),
    Sketcher.Constraint("Equal", 1, 3),
    Sketcher.Constraint("Equal", 3, 5),
    Sketcher.Constraint("Equal", 7, 9),
    Sketcher.Constraint("Equal", 9, 11),
    Sketcher.Constraint("Equal", 11, 13),
    Sketcher.Constraint("Equal", 5, 15),
    Sketcher.Constraint("Equal", 15, 17),
    Sketcher.Constraint("Equal", 17, 19),
    Sketcher.Constraint("Equal", 19, 23),
    Sketcher.Constraint("Equal", 23, 25),
    Sketcher.Constraint("Equal", 25, 27),
    Sketcher.Constraint("Equal", 13, 29),
    Sketcher.Constraint("Equal", 27, 31),
    Sketcher.Constraint("Equal", 31, 33),
    Sketcher.Constraint("Equal", 33, 35),
    Sketcher.Constraint("Equal", 35, 37),
    Sketcher.Constraint("Equal", 37, 39),
    Sketcher.Constraint("Equal", 39, 41),
    Sketcher.Constraint("Equal", 21, 43),
    Sketcher.Constraint("Equal", 41, 45),
    Sketcher.Constraint("Equal", 45, 47),
    Sketcher.Constraint("Equal", 47, 49),
    Sketcher.Constraint("Equal", 49, 51),
    Sketcher.Constraint("Equal", 51, 53),
    Sketcher.Constraint("Equal", 53, 55),
    Sketcher.Constraint("Equal", 29, 57),
    Sketcher.Constraint("Equal", 55, 59),
    Sketcher.Constraint("Equal", 59, 61),
    Sketcher.Constraint("Equal", 61, 63),
    Sketcher.Constraint("Equal", 43, 65),
    Sketcher.Constraint("Equal", 63, 67),
    Sketcher.Constraint("Equal", 67, 69),
    Sketcher.Constraint("Equal", 69, 71),
    Sketcher.Constraint("Equal", 57, 73),
    Sketcher.Constraint("Equal", 73, 75),
    Sketcher.Constraint("Equal", 75, 77),
    Sketcher.Constraint("Equal", 77, 79),
    Sketcher.Constraint("Equal", 71, 81),
    Sketcher.Constraint("Equal", 81, 83),
    Sketcher.Constraint("Equal", 83, 85),
    Sketcher.Constraint("Equal", 65, 87),
    Sketcher.Constraint("Perpendicular", 8, 12),
    Sketcher.Constraint("Parallel", 12, 30),
    Sketcher.Constraint("Perpendicular", 30, 34),
    Sketcher.Constraint("Parallel", 34, 52),
    Sketcher.Constraint("Perpendicular", 52, 56),
    Sketcher.Constraint("Perpendicular", 56, 78),
    Sketcher.Constraint("Horizontal", 7, 3, 13, 3),
    Sketcher.Constraint("Horizontal", 5, 3, 15, 3),
    Sketcher.Constraint("Horizontal", 1, 3, 19, 3),
    Sketcher.Constraint("Horizontal", 49, 3, 59, 3),
    Sketcher.Constraint("Horizontal", 45, 3, 63, 3),
    Sketcher.Constraint("Horizontal", 29, 3, 79, 3),
    Sketcher.Constraint("Horizontal", 25, 3, 83, 3),
    Sketcher.Constraint("Horizontal", 87, 3, 3, 2),
    Sketcher.Constraint("Horizontal", 8, 2, 11, 1),
    Sketcher.Constraint("Horizontal", 77, 3, 31, 1),
    Sketcher.Constraint("Horizontal", 75, 3, 32, 2),
    Sketcher.Constraint("Horizontal", 42, 2, 47, 2),
    Sketcher.Constraint("Horizontal", 51, 1, 56, 2),
    Sketcher.Constraint("Horizontal", 33, 1, 74, 2),
    Sketcher.Constraint("Horizontal", 30, 2, 77, 1),
    Sketcher.Constraint("Vertical", 23, 3, 41, 3),
    Sketcher.Constraint("Vertical", 19, 3, 45, 3),
    Sketcher.Constraint("Vertical", 7, 3, 57, 3),
    Sketcher.Constraint("Vertical", 3, 3, 61, 3),
    Sketcher.Constraint("Vertical", 71, 3, 81, 3),
    Sketcher.Constraint("Vertical", 67, 3, 85, 3),
    Sketcher.Constraint("Vertical", 8, 2, 55, 1),
    Sketcher.Constraint("Vertical", 64, 2, 69, 2),
    Sketcher.Constraint("Equal", 0, 20),
    Sketcher.Constraint("Equal", 28, 36),
    Sketcher.Constraint("Equal", 10, 54),
    Sketcher.Constraint("Equal", 36, 80),
    Sketcher.Constraint("Equal", 80, 6),
    Sketcher.Constraint("Equal", 64, 22),
    Sketcher.Constraint("Equal", 60, 26),
    Sketcher.Constraint("Equal", 54, 32),
    Sketcher.Constraint("Equal", 26, 38),
    Sketcher.Constraint("Equal", 14, 58),
    Sketcher.Constraint("Equal", 22, 66),
    Sketcher.Constraint("Equal", 12, 30),
    Sketcher.Constraint("Equal", 30, 34),
    Sketcher.Constraint("Diameter", 88, Q("5 mm")),
    Sketcher.Constraint("Radius", 21, Q("1 mm")),
    Sketcher.Constraint("Radius", 1, Q("0.3 mm")),
    Sketcher.Constraint("DistanceX", 4, 2, 4, 1, Q("1 mm")),
    Sketcher.Constraint("DistanceX", 0, 1, 0, 2, Q("3.2 mm")),
    Sketcher.Constraint("DistanceX", -1, 1, 37, 1, Q("14 mm")),
    Sketcher.Constraint("DistanceY", -1, 1, 35, 3, Q("11.8 mm")),
    Sketcher.Constraint("DistanceX", -1, 1, 88, 3, Q("7.5 mm")),
    Sketcher.Constraint("DistanceY", -1, 1, 88, 3, Q("7.5 mm")),
    Sketcher.Constraint("Radius", 7, Q("0.305736 mm")),
    Sketcher.Constraint("DistanceX", 10, 1, 10, 2, Q("5.337258 mm")),
    Sketcher.Constraint("DistanceX", 28, 2, 28, 1, Q("0.768629 mm")),
    Sketcher.Constraint("DistanceX", 40, 1, 40, 2, Q("0.397149 mm")),
    Sketcher.Constraint("DistanceX", 48, 1, 48, 2, Q("1.00168 mm")),
    Sketcher.Constraint("DistanceX", 72, 1, 72, 2, Q("0.760779 mm")),
    Sketcher.Constraint("DistanceY", 42, 1, 42, 2, Q("3.189008 mm")),
    Sketcher.Constraint("DistanceY", 70, 1, 70, 2, Q("1.001191 mm")),
    Sketcher.Constraint("DistanceX", -1, 1, 55, 3, Q("4.8302 mm")),
    Sketcher.Constraint("DistanceX", 24, 2, 24, 1, Q("0.391887 mm")),
    Sketcher.Constraint("DistanceY", -1, 1, 33, 3, Q("10.141742 mm")),
])
pad1 = doc.addObject("PartDesign::Pad", "Pad")
body.addObject(pad1)
pad1.Profile = sketch1
pad1.Length = 220

doc.recompute()
